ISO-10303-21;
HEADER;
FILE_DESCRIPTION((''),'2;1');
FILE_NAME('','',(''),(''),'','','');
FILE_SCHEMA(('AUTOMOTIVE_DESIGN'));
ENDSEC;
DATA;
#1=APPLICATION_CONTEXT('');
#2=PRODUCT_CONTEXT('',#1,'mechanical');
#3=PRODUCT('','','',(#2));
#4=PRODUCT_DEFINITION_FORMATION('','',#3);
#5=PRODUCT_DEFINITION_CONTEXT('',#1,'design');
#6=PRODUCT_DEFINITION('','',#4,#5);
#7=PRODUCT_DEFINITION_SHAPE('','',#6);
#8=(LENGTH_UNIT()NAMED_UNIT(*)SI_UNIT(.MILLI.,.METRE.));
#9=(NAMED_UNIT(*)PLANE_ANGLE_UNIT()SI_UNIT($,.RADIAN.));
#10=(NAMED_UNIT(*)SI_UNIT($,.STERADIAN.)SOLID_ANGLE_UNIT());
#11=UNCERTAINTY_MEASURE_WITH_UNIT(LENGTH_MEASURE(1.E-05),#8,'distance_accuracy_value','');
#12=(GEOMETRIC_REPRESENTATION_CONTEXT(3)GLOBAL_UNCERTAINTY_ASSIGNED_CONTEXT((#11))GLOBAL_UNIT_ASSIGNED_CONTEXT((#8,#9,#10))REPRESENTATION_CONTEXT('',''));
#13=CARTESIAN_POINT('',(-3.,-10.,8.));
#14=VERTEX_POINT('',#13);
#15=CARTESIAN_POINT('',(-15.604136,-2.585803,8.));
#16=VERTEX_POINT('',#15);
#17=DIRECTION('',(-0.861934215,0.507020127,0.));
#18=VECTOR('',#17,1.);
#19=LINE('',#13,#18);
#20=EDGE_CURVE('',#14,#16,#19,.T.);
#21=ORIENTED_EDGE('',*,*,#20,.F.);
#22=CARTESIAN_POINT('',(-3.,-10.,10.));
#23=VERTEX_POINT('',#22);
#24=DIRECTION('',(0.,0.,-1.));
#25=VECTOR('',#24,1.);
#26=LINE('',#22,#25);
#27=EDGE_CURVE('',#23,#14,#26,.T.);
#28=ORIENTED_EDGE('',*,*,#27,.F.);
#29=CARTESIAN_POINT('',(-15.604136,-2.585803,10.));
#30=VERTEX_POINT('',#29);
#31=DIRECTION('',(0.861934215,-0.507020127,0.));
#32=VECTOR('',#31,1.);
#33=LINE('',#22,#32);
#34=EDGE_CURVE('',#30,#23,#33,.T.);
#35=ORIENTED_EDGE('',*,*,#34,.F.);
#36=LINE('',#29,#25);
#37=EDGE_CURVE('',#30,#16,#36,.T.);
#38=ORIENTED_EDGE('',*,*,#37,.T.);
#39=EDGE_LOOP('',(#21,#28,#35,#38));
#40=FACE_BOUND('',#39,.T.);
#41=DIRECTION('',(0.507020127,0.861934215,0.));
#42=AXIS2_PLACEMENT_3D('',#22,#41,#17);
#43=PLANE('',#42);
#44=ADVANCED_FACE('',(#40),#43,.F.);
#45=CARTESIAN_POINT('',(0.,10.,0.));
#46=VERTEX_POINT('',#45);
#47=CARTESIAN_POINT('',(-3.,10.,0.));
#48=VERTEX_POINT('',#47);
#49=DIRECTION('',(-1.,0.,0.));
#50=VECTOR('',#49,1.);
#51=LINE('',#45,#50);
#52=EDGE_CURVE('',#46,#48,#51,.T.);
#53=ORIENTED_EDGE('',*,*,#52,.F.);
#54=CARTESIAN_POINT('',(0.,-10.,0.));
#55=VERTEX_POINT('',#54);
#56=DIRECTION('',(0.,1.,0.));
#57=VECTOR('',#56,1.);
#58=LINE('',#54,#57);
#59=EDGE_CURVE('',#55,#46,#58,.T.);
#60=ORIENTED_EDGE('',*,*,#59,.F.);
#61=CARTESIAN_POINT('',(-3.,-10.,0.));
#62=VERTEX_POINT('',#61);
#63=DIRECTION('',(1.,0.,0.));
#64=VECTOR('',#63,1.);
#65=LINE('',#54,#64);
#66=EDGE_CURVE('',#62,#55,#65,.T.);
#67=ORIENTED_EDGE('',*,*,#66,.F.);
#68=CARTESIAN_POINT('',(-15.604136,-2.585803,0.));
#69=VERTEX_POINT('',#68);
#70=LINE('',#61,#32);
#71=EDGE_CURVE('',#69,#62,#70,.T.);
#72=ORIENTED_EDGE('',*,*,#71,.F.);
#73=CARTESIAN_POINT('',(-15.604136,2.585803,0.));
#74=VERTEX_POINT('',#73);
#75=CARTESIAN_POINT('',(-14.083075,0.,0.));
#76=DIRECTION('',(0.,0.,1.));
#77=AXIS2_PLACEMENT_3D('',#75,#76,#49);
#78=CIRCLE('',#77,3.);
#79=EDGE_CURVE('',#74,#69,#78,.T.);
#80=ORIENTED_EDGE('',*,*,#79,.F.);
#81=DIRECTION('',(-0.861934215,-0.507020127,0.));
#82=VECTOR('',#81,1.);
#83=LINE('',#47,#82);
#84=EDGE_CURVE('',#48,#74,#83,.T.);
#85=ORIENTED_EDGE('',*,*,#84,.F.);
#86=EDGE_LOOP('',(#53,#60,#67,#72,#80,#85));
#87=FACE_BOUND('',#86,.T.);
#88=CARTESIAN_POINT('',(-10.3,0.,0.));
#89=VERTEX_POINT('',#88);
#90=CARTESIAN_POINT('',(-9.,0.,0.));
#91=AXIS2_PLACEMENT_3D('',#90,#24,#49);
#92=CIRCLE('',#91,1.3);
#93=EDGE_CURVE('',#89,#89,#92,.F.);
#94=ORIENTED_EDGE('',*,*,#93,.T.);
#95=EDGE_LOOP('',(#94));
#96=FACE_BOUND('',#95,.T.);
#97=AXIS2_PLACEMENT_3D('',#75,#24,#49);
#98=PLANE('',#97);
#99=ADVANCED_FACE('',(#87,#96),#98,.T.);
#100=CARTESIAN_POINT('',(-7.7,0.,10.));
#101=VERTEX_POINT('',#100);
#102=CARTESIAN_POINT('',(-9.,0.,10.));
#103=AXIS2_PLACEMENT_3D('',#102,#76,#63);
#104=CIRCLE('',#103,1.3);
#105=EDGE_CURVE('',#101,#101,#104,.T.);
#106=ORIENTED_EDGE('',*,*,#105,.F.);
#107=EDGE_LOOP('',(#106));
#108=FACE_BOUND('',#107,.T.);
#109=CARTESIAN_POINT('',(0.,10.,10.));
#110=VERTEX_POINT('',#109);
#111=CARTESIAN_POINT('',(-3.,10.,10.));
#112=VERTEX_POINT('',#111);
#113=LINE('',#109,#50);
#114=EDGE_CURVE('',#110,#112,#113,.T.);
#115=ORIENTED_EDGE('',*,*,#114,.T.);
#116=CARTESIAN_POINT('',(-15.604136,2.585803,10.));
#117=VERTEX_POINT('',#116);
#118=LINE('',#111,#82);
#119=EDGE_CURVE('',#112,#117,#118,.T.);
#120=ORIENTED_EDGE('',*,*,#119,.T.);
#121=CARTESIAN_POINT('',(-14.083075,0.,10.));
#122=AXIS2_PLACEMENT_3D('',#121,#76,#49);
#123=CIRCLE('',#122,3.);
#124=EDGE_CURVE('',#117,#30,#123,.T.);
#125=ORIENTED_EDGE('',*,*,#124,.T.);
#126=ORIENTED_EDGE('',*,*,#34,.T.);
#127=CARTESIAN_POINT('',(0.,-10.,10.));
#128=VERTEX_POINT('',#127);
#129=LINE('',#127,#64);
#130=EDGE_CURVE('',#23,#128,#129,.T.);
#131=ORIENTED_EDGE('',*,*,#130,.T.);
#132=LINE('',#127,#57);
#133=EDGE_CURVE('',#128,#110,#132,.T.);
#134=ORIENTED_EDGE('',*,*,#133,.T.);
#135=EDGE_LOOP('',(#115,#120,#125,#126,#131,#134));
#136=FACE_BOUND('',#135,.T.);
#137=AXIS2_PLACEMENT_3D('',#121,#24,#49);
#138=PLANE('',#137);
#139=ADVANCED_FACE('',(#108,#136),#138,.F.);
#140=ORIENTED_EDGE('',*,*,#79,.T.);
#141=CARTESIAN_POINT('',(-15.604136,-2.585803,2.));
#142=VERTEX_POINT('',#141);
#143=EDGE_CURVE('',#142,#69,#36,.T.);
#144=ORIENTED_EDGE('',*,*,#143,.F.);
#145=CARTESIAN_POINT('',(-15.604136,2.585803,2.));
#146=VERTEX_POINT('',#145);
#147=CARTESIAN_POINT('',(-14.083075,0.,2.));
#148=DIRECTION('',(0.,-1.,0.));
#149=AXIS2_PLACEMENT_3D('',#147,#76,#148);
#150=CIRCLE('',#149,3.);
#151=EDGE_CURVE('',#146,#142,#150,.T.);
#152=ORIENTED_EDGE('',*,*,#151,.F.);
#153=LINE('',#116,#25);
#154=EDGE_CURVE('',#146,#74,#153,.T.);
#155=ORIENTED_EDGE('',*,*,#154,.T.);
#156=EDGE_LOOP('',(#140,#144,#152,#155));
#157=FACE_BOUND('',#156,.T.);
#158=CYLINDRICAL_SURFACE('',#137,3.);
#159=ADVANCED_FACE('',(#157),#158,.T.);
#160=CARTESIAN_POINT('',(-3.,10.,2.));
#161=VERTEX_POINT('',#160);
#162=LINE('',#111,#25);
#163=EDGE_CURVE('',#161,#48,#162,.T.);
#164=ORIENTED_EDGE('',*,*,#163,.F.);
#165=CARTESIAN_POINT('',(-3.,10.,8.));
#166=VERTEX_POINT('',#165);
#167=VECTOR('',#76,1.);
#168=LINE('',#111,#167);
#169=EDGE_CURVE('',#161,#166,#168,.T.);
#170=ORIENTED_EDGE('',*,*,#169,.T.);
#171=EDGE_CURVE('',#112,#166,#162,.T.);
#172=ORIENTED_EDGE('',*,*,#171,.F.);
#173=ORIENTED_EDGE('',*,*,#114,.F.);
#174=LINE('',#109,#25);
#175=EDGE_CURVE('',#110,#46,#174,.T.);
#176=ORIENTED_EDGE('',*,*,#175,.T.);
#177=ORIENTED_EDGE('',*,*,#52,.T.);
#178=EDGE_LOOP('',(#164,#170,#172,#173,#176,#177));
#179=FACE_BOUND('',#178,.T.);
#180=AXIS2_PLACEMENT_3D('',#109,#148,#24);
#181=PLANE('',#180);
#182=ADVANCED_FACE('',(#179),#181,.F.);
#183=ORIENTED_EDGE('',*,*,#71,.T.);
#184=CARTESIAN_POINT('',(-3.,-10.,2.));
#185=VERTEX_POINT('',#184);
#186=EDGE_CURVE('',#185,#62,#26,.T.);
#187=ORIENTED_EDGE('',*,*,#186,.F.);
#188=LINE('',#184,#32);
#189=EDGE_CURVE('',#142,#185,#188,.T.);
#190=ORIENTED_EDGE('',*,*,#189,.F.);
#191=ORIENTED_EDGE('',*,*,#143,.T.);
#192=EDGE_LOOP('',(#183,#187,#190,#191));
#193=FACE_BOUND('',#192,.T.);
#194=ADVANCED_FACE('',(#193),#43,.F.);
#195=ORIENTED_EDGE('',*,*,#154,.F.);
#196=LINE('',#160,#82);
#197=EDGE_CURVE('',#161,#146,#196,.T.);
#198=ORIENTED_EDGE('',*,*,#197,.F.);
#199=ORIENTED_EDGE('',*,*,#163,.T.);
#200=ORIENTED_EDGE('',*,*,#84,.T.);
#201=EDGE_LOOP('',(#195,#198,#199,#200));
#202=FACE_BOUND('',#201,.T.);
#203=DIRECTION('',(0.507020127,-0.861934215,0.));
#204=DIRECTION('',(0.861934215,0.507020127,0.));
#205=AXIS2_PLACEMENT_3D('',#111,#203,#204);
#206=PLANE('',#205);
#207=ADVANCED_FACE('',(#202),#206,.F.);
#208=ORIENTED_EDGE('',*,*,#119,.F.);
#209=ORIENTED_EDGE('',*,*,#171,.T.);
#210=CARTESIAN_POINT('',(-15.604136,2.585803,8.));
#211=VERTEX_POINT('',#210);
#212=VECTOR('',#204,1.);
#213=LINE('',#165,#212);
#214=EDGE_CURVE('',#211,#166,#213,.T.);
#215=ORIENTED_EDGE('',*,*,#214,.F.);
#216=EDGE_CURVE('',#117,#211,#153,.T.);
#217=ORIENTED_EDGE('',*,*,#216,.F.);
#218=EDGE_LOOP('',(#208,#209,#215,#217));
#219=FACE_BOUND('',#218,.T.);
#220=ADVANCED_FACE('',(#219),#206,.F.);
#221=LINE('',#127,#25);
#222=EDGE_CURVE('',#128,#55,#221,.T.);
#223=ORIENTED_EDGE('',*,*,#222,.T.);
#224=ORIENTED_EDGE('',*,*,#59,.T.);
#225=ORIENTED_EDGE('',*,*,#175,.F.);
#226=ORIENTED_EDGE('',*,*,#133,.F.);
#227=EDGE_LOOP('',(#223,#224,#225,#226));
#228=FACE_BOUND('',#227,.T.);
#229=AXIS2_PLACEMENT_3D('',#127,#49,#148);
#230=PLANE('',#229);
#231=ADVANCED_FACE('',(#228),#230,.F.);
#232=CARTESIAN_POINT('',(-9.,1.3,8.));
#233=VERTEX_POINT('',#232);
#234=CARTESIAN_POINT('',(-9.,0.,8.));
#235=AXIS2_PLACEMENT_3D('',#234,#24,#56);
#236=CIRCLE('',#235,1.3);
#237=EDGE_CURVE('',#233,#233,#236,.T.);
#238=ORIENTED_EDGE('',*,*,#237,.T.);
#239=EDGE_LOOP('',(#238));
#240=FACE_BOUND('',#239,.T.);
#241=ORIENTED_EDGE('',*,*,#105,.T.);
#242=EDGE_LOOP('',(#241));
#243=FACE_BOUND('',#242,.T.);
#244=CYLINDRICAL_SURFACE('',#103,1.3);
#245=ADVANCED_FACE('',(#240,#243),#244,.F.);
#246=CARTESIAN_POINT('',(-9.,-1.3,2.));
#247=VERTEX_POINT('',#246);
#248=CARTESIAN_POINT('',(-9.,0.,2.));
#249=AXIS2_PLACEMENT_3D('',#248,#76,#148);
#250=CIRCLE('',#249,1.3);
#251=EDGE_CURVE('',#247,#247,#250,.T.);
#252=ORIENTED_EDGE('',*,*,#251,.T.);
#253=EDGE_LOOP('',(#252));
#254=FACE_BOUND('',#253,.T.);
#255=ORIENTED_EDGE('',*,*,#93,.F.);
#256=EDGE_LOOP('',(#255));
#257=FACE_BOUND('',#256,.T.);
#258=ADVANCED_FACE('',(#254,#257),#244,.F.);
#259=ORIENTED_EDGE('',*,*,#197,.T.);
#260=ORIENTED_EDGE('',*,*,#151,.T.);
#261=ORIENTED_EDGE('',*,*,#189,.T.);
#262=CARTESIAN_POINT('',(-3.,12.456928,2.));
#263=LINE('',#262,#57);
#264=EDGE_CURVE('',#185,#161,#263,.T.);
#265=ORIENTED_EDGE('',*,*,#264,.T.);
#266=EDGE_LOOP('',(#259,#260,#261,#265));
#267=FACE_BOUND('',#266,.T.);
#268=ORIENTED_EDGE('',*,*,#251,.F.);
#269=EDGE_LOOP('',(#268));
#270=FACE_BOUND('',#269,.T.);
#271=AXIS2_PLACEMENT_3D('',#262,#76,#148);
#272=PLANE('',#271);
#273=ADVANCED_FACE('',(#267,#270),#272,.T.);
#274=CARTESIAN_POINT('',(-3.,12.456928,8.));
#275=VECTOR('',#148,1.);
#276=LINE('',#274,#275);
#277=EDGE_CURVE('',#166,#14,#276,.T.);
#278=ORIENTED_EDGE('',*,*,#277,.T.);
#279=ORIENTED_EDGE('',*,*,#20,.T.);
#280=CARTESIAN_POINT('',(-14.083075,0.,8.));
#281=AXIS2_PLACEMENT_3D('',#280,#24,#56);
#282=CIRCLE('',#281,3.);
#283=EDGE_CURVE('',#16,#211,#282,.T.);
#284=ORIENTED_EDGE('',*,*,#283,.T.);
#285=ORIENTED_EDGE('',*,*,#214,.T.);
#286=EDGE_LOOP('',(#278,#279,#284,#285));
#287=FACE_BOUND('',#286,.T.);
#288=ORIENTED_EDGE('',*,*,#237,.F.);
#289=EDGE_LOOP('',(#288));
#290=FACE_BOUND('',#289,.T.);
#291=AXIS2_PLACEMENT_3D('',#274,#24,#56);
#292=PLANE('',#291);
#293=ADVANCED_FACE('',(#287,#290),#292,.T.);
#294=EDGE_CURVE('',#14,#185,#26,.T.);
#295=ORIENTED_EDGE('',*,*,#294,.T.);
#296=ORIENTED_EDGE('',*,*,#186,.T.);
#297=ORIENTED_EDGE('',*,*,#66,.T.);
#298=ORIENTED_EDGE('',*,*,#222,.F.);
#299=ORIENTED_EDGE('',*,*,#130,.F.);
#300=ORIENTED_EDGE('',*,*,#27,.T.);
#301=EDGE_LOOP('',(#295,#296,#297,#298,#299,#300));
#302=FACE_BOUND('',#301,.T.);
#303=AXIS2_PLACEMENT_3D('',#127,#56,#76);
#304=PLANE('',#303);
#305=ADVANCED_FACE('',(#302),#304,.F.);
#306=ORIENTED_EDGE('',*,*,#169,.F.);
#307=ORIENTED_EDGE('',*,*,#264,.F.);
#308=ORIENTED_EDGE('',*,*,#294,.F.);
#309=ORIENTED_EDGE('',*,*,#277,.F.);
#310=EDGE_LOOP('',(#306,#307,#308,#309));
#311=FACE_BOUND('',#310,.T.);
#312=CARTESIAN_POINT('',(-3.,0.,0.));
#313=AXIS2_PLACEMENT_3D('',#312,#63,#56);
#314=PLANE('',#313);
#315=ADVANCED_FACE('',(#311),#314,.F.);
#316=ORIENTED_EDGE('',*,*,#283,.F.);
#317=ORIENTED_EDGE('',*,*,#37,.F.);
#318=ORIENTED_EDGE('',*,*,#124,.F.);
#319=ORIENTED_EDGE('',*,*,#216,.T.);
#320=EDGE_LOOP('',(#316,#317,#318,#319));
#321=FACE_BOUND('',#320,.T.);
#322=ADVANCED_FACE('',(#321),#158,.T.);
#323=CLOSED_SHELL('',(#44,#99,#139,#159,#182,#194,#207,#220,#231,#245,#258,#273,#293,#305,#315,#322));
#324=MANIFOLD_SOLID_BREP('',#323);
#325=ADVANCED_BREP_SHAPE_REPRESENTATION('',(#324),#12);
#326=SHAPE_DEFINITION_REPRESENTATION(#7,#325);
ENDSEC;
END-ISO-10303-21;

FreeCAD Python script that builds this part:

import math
import FreeCAD as App
import Part
import Sketcher
from FreeCAD import Vector
Q = App.Units.Quantity

doc = App.newDocument("Part")
body = doc.addObject("PartDesign::Body", "Body")

# Sketch on XY plane
sketch1 = body.newObject("Sketcher::SketchObject", "Sketch")
sketch1.AttachmentSupport = (doc.getObject("XY_Plane"), [""])
sketch1.MapMode = "FlatFace"
sketch1.addGeometry([
    Part.LineSegment(Vector(0, -10, 0), Vector(0, 10, 0)),  # 0
    Part.LineSegment(Vector(0, 10, 0), Vector(-3, 10, 0)),  # 1
    Part.LineSegment(Vector(-3, 10, 0), Vector(-15.604136, 2.585803, 0)),  # 2
    Part.ArcOfCircle(Part.Circle(Vector(-14.083075, 0, 0), Vector(0, 0, 1), 3), math.radians(120.465545), math.radians(239.534455)),  # 3
    Part.LineSegment(Vector(-15.604136, -2.585803, 0), Vector(-3, -10, 0)),  # 4
    Part.LineSegment(Vector(-3, -10, 0), Vector(0, -10, 0)),  # 5
], False)
sketch1.addConstraint([
    Sketcher.Constraint("Coincident", 0, 2, 1, 1),
    Sketcher.Constraint("Coincident", 1, 2, 2, 1),
    Sketcher.Constraint("Tangent", 2, 2, 3, 1),
    Sketcher.Constraint("Tangent", 3, 2, 4, 1),
    Sketcher.Constraint("Coincident", 4, 2, 5, 1),
    Sketcher.Constraint("Coincident", 5, 2, 0, 1),
    Sketcher.Constraint("Vertical", 0),
    Sketcher.Constraint("Horizontal", 1),
    Sketcher.Constraint("Horizontal", 5),
    Sketcher.Constraint("Symmetric", 0, 2, 5, 2, -1, 1),
    Sketcher.Constraint("Symmetric", 2, 2, 3, 2, -1),
    Sketcher.Constraint("Radius", 3, Q("3 mm")),
    Sketcher.Constraint("DistanceX", 1, 2, 1, 1, Q("3 mm")),
    Sketcher.Constraint("DistanceY", 0, 1, 0, 2, Q("20 mm")),
    Sketcher.Constraint("DistanceX", 2, 2, 3, 3, Q("1.52106 mm")),
])
pad1 = body.newObject("PartDesign::Pad", "Pad")
pad1.Profile = sketch1
pad1.Length = 10

# Sketch on YZ plane
sketch2 = body.newObject("Sketcher::SketchObject", "Sketch001")
sketch2.AttachmentSupport = (doc.getObject("YZ_Plane"), [""])
sketch2.MapMode = "FlatFace"
sketch2.AttachmentOffset = App.Placement(Vector(0, 0, -25), App.Rotation())
sketch2.addGeometry([
    Part.LineSegment(Vector(12.456928, 8, 0), Vector(-12.456928, 8, 0)),
    Part.LineSegment(Vector(-12.456928, 8, 0), Vector(-12.456928, 2, 0)),
    Part.LineSegment(Vector(-12.456928, 2, 0), Vector(12.456928, 2, 0)),
    Part.LineSegment(Vector(12.456928, 2, 0), Vector(12.456928, 8, 0)),
], False)
sketch2.addConstraint([
    Sketcher.Constraint("Coincident", 0, 2, 1, 1),
    Sketcher.Constraint("Coincident", 1, 2, 2, 1),
    Sketcher.Constraint("Coincident", 2, 2, 3, 1),
    Sketcher.Constraint("Coincident", 3, 2, 0, 1),
    Sketcher.Constraint("Horizontal", 0),
    Sketcher.Constraint("Vertical", 1),
    Sketcher.Constraint("Horizontal", 2),
    Sketcher.Constraint("Vertical", 3),
    Sketcher.Constraint("DistanceY", 1, 2, 1, 1, Q("6 mm")),
    Sketcher.Constraint("DistanceY", -1, 1, 0, 2, Q("8 mm")),
    Sketcher.Constraint("DistanceX", 0, 2, 0, 1, Q("24.913855 mm")),
    Sketcher.Constraint("DistanceX", 0, 2, -1, 1, Q("12.456928 mm")),
])
pocket1 = body.newObject("PartDesign::Pocket", "Pocket")
pocket1.Profile = sketch2
pocket1.Length = 22
pocket1.Reversed = True

# Sketch on XY plane
sketch3 = body.newObject("Sketcher::SketchObject", "Sketch002")
sketch3.AttachmentSupport = (doc.getObject("XY_Plane"), [""])
sketch3.MapMode = "FlatFace"
sketch3.AttachmentOffset = App.Placement(Vector(0, 0, 10), App.Rotation())
sketch3.addGeometry(Part.Circle(Vector(-9, 0, 0), Vector(0, 0, 1), 1.3), False)
sketch3.addConstraint([
    Sketcher.Constraint("PointOnObject", 0, 3, -1),
    Sketcher.Constraint("Diameter", 0, Q("2.6 mm")),
    Sketcher.Constraint("DistanceX", 0, 3, -1, 1, Q("9 mm")),
])
doc.recompute()
hole = body.newObject("PartDesign::Hole", "Hole")
hole.Profile = sketch3
hole.ThreadType = "None"
hole.Diameter = 2.6
hole.DepthType = "ThroughAll"

doc.recompute()
